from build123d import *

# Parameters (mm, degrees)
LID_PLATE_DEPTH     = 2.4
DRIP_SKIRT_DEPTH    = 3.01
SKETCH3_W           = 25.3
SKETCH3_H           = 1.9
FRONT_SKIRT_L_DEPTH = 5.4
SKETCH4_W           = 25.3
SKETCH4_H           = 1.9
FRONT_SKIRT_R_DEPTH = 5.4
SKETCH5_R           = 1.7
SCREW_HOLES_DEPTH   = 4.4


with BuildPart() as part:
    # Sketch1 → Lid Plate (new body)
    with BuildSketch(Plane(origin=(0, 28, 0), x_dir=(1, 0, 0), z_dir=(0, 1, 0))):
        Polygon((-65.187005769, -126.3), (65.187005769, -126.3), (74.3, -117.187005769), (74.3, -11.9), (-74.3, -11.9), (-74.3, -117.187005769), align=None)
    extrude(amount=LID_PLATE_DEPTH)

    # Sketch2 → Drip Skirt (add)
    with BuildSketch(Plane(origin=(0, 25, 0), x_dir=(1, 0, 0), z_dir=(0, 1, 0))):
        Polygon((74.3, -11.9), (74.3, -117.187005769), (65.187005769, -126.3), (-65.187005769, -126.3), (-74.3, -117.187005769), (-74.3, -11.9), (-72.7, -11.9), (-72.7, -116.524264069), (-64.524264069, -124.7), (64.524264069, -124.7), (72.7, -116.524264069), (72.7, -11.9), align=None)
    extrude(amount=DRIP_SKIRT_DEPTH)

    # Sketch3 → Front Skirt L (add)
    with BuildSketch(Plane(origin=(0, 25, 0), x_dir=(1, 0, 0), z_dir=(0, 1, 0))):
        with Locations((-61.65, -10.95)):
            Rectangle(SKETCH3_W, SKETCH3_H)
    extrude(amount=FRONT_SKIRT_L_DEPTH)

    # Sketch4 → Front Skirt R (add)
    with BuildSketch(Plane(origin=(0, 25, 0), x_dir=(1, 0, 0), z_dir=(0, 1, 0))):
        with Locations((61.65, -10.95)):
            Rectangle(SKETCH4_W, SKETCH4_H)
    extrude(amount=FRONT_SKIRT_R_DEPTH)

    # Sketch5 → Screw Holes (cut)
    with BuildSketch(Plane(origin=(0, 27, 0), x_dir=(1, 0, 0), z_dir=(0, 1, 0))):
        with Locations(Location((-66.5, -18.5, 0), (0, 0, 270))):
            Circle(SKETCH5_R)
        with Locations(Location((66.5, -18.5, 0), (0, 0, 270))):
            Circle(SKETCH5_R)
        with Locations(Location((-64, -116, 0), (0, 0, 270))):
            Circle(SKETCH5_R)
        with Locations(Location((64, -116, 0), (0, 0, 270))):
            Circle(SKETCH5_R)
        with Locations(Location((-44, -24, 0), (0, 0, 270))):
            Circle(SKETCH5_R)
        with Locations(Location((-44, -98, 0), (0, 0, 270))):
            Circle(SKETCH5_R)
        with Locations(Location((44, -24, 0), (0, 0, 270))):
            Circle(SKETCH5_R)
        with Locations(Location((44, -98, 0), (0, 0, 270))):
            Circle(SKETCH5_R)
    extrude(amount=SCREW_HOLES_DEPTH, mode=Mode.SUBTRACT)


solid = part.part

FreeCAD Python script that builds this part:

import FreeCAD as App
import Part
import Sketcher

V = App.Vector

doc = App.newDocument("Part")
body = doc.addObject("PartDesign::Body", "Body")

# Sketch on XZ plane
sketch1 = body.newObject("Sketcher::SketchObject", "Sketch")
sketch1.AttachmentSupport = (doc.getObject("XZ_Plane"), [""])
sketch1.MapMode = "FlatFace"
sketch1.AttachmentOffset = App.Placement(V(0, 0, -28), App.Rotation())
sketch1.addGeometry(Part.LineSegment(V(-65, 126, 0), V(65, 126, 0)), False)
sketch1.addGeometry(Part.LineSegment(V(65, 126, 0), V(74, 117, 0)), False)
sketch1.addGeometry(Part.LineSegment(V(74, 117, 0), V(74, 12, 0)), False)
sketch1.addGeometry(Part.LineSegment(V(74, 12, 0), V(-74, 12, 0)), False)
sketch1.addGeometry(Part.LineSegment(V(-74, 12, 0), V(-74, 117, 0)), False)
sketch1.addGeometry(Part.LineSegment(V(-74, 117, 0), V(-65, 126, 0)), False)
sketch1.addConstraint(Sketcher.Constraint("Coincident", 0, 2, 1, 1))
sketch1.addConstraint(Sketcher.Constraint("Coincident", 1, 2, 2, 1))
sketch1.addConstraint(Sketcher.Constraint("Coincident", 2, 2, 3, 1))
sketch1.addConstraint(Sketcher.Constraint("Coincident", 3, 2, 4, 1))
sketch1.addConstraint(Sketcher.Constraint("Coincident", 4, 2, 5, 1))
sketch1.addConstraint(Sketcher.Constraint("Coincident", 5, 2, 0, 1))
sketch1.addConstraint(Sketcher.Constraint("Horizontal", 0))
sketch1.addConstraint(Sketcher.Constraint("Vertical", 2))
sketch1.addConstraint(Sketcher.Constraint("Horizontal", 3))
sketch1.addConstraint(Sketcher.Constraint("Vertical", 4))
sketch1.addConstraint(Sketcher.Constraint("Symmetric", 1, 2, 4, 2, -2))
sketch1.addConstraint(Sketcher.Constraint("Perpendicular", 1, 5))
sketch1.addConstraint(Sketcher.Constraint("Equal", 1, 5))
sketch1.addConstraint(Sketcher.Constraint("DistanceX", 3, 2, 3, 1, 148.6))
sketch1.addConstraint(Sketcher.Constraint("DistanceY", -1, 1, 0, 2, 126.3))
sketch1.addConstraint(Sketcher.Constraint("DistanceY", -1, 1, 2, 2, 11.9))
sketch1.addConstraint(Sketcher.Constraint("DistanceX", 0, 1, 0, 2, 130.374012))
pad1 = body.newObject("PartDesign::Pad", "Pad")
pad1.Profile = sketch1
pad1.Length = 2.4
pad1.Reversed = True

# Sketch on XZ plane
sketch2 = body.newObject("Sketcher::SketchObject", "Sketch001")
sketch2.AttachmentSupport = (doc.getObject("XZ_Plane"), [""])
sketch2.MapMode = "FlatFace"
sketch2.AttachmentOffset = App.Placement(V(0, 0, -25), App.Rotation())
sketch2.addGeometry(Part.LineSegment(V(74.3, 117.2, 0), V(74.3, 11.9, 0)), False)
sketch2.addGeometry(Part.LineSegment(V(74.3, 11.9, 0), V(72.7, 11.9, 0)), False)
sketch2.addGeometry(Part.LineSegment(V(72.7, 11.9, 0), V(72.7, 116.5, 0)), False)
sketch2.addGeometry(Part.LineSegment(V(72.7, 116.5, 0), V(64.5, 124.7, 0)), False)
sketch2.addGeometry(Part.LineSegment(V(64.5, 124.7, 0), V(-64.5, 124.7, 0)), False)
sketch2.addGeometry(Part.LineSegment(V(-64.5, 124.7, 0), V(-72.7, 116.5, 0)), False)
sketch2.addGeometry(Part.LineSegment(V(-72.7, 116.5, 0), V(-72.7, 11.9, 0)), False)
sketch2.addGeometry(Part.LineSegment(V(-72.7, 11.9, 0), V(-74.3, 11.9, 0)), False)
sketch2.addGeometry(Part.LineSegment(V(-74.3, 11.9, 0), V(-74.3, 117.2, 0)), False)
sketch2.addGeometry(Part.LineSegment(V(-74.3, 117.2, 0), V(-65.2, 126.3, 0)), False)
sketch2.addGeometry(Part.LineSegment(V(-65.2, 126.3, 0), V(65.2, 126.3, 0)), False)
sketch2.addGeometry(Part.LineSegment(V(65.2, 126.3, 0), V(74.3, 117.2, 0)), False)
sketch2.addConstraint(Sketcher.Constraint("Coincident", 0, 2, 1, 1))
sketch2.addConstraint(Sketcher.Constraint("Coincident", 1, 2, 2, 1))
sketch2.addConstraint(Sketcher.Constraint("Coincident", 2, 2, 3, 1))
sketch2.addConstraint(Sketcher.Constraint("Coincident", 3, 2, 4, 1))
sketch2.addConstraint(Sketcher.Constraint("Coincident", 4, 2, 5, 1))
sketch2.addConstraint(Sketcher.Constraint("Coincident", 5, 2, 6, 1))
sketch2.addConstraint(Sketcher.Constraint("Coincident", 6, 2, 7, 1))
sketch2.addConstraint(Sketcher.Constraint("Coincident", 7, 2, 8, 1))
sketch2.addConstraint(Sketcher.Constraint("Coincident", 8, 2, 9, 1))
sketch2.addConstraint(Sketcher.Constraint("Coincident", 9, 2, 10, 1))
sketch2.addConstraint(Sketcher.Constraint("Coincident", 10, 2, 11, 1))
sketch2.addConstraint(Sketcher.Constraint("Coincident", 11, 2, 0, 1))
sketch2.addConstraint(Sketcher.Constraint("Vertical", 0))
sketch2.addConstraint(Sketcher.Constraint("Horizontal", 1))
sketch2.addConstraint(Sketcher.Constraint("Vertical", 2))
sketch2.addConstraint(Sketcher.Constraint("Horizontal", 4))
sketch2.addConstraint(Sketcher.Constraint("Vertical", 6))
sketch2.addConstraint(Sketcher.Constraint("Horizontal", 7))
sketch2.addConstraint(Sketcher.Constraint("Vertical", 8))
sketch2.addConstraint(Sketcher.Constraint("Horizontal", 10))
sketch2.addConstraint(Sketcher.Constraint("Symmetric", 2, 2, 5, 2, -2))
sketch2.addConstraint(Sketcher.Constraint("Symmetric", 0, 2, 7, 2, -2))
sketch2.addConstraint(Sketcher.Constraint("Perpendicular", 3, 5))
sketch2.addConstraint(Sketcher.Constraint("Parallel", 5, 9))
sketch2.addConstraint(Sketcher.Constraint("Perpendicular", 9, 11))
sketch2.addConstraint(Sketcher.Constraint("Horizontal", 8, 2, 11, 2))
sketch2.addConstraint(Sketcher.Constraint("Equal", 3, 5))
sketch2.addConstraint(Sketcher.Constraint("DistanceX", 1, 2, 1, 1, 1.6))
sketch2.addConstraint(Sketcher.Constraint("DistanceX", 5, 2, 0, 2, 147.0))
sketch2.addConstraint(Sketcher.Constraint("DistanceY", -1, 1, 0, 2, 11.9))
sketch2.addConstraint(Sketcher.Constraint("DistanceY", -1, 1, 3, 2, 124.7))
sketch2.addConstraint(Sketcher.Constraint("DistanceY", -1, 1, 9, 2, 126.3))
sketch2.addConstraint(Sketcher.Constraint("DistanceX", 4, 2, 4, 1, 129.048528))
sketch2.addConstraint(Sketcher.Constraint("DistanceX", 10, 1, 10, 2, 130.374012))
pad2 = body.newObject("PartDesign::Pad", "Pad001")
pad2.Profile = sketch2
pad2.Length = 3.01
pad2.Reversed = True

# Sketch on XZ plane
sketch3 = body.newObject("Sketcher::SketchObject", "Sketch002")
sketch3.AttachmentSupport = (doc.getObject("XZ_Plane"), [""])
sketch3.MapMode = "FlatFace"
sketch3.AttachmentOffset = App.Placement(V(0, 0, -25), App.Rotation())
sketch3.addGeometry(Part.LineSegment(V(-74.3, 10, 0), V(-74.3, 11.9, 0)), False)
sketch3.addGeometry(Part.LineSegment(V(-74.3, 11.9, 0), V(-49, 11.9, 0)), False)
sketch3.addGeometry(Part.LineSegment(V(-49, 11.9, 0), V(-49, 10, 0)), False)
sketch3.addGeometry(Part.LineSegment(V(-49, 10, 0), V(-74.3, 10, 0)), False)
sketch3.addConstraint(Sketcher.Constraint("Coincident", 0, 2, 1, 1))
sketch3.addConstraint(Sketcher.Constraint("Coincident", 1, 2, 2, 1))
sketch3.addConstraint(Sketcher.Constraint("Coincident", 2, 2, 3, 1))
sketch3.addConstraint(Sketcher.Constraint("Coincident", 3, 2, 0, 1))
sketch3.addConstraint(Sketcher.Constraint("Vertical", 0))
sketch3.addConstraint(Sketcher.Constraint("Horizontal", 1))
sketch3.addConstraint(Sketcher.Constraint("Vertical", 2))
sketch3.addConstraint(Sketcher.Constraint("Horizontal", 3))
sketch3.addConstraint(Sketcher.Constraint("DistanceX", 1, 1, 1, 2, 25.3))
sketch3.addConstraint(Sketcher.Constraint("DistanceY", 0, 1, 0, 2, 1.9))
sketch3.addConstraint(Sketcher.Constraint("DistanceX", 1, 2, -1, 1, 49.0))
sketch3.addConstraint(Sketcher.Constraint("DistanceY", -1, 1, 2, 2, 10.0))
pad3 = body.newObject("PartDesign::Pad", "Pad002")
pad3.Profile = sketch3
pad3.Length = 5.4
pad3.Reversed = True

# Sketch on XZ plane
sketch4 = body.newObject("Sketcher::SketchObject", "Sketch003")
sketch4.AttachmentSupport = (doc.getObject("XZ_Plane"), [""])
sketch4.MapMode = "FlatFace"
sketch4.AttachmentOffset = App.Placement(V(0, 0, -25), App.Rotation())
sketch4.addGeometry(Part.LineSegment(V(49, 10, 0), V(49, 11.9, 0)), False)
sketch4.addGeometry(Part.LineSegment(V(49, 11.9, 0), V(74.3, 11.9, 0)), False)
sketch4.addGeometry(Part.LineSegment(V(74.3, 11.9, 0), V(74.3, 10, 0)), False)
sketch4.addGeometry(Part.LineSegment(V(74.3, 10, 0), V(49, 10, 0)), False)
sketch4.addConstraint(Sketcher.Constraint("Coincident", 0, 2, 1, 1))
sketch4.addConstraint(Sketcher.Constraint("Coincident", 1, 2, 2, 1))
sketch4.addConstraint(Sketcher.Constraint("Coincident", 2, 2, 3, 1))
sketch4.addConstraint(Sketcher.Constraint("Coincident", 3, 2, 0, 1))
sketch4.addConstraint(Sketcher.Constraint("Vertical", 0))
sketch4.addConstraint(Sketcher.Constraint("Horizontal", 1))
sketch4.addConstraint(Sketcher.Constraint("Vertical", 2))
sketch4.addConstraint(Sketcher.Constraint("Horizontal", 3))
sketch4.addConstraint(Sketcher.Constraint("DistanceX", 1, 1, 1, 2, 25.3))
sketch4.addConstraint(Sketcher.Constraint("DistanceY", 0, 1, 0, 2, 1.9))
sketch4.addConstraint(Sketcher.Constraint("DistanceX", -1, 1, 0, 2, 49.0))
sketch4.addConstraint(Sketcher.Constraint("DistanceY", -1, 1, 2, 2, 10.0))
pad4 = body.newObject("PartDesign::Pad", "Pad003")
pad4.Profile = sketch4
pad4.Length = 5.4
pad4.Reversed = True

# Sketch on XZ plane
sketch5 = body.newObject("Sketcher::SketchObject", "Sketch004")
sketch5.AttachmentSupport = (doc.getObject("XZ_Plane"), [""])
sketch5.MapMode = "FlatFace"
sketch5.AttachmentOffset = App.Placement(V(0, 0, -27), App.Rotation())
sketch5.addGeometry(Part.Circle(V(-66.5, 18.5, 0), V(0, 0, 1), 1.7), False)
sketch5.addGeometry(Part.Circle(V(66.5, 18.5, 0), V(0, 0, 1), 1.7), False)
sketch5.addGeometry(Part.Circle(V(-64, 116, 0), V(0, 0, 1), 1.7), False)
sketch5.addGeometry(Part.Circle(V(64, 116, 0), V(0, 0, 1), 1.7), False)
sketch5.addGeometry(Part.Circle(V(-44, 24, 0), V(0, 0, 1), 1.7), False)
sketch5.addGeometry(Part.Circle(V(-44, 98, 0), V(0, 0, 1), 1.7), False)
sketch5.addGeometry(Part.Circle(V(44, 24, 0), V(0, 0, 1), 1.7), False)
sketch5.addGeometry(Part.Circle(V(44, 98, 0), V(0, 0, 1), 1.7), False)
sketch5.addConstraint(Sketcher.Constraint("Equal", 0, 1))
sketch5.addConstraint(Sketcher.Constraint("Equal", 1, 2))
sketch5.addConstraint(Sketcher.Constraint("Equal", 2, 3))
sketch5.addConstraint(Sketcher.Constraint("Equal", 3, 4))
sketch5.addConstraint(Sketcher.Constraint("Equal", 4, 5))
sketch5.addConstraint(Sketcher.Constraint("Equal", 5, 6))
sketch5.addConstraint(Sketcher.Constraint("Equal", 6, 7))
sketch5.addConstraint(Sketcher.Constraint("Symmetric", 0, 3, 1, 3, -2))
sketch5.addConstraint(Sketcher.Constraint("Symmetric", 2, 3, 3, 3, -2))
sketch5.addConstraint(Sketcher.Constraint("Symmetric", 4, 3, 6, 3, -2))
sketch5.addConstraint(Sketcher.Constraint("Symmetric", 5, 3, 7, 3, -2))
sketch5.addConstraint(Sketcher.Constraint("Vertical", 4, 3, 5, 3))
sketch5.addConstraint(Sketcher.Constraint("Diameter", 0, 3.4))
sketch5.addConstraint(Sketcher.Constraint("DistanceX", 2, 3, -1, 1, 64.0))
sketch5.addConstraint(Sketcher.Constraint("DistanceY", -1, 1, 2, 3, 116.0))
sketch5.addConstraint(Sketcher.Constraint("DistanceX", 4, 3, -1, 1, 44.0))
sketch5.addConstraint(Sketcher.Constraint("DistanceY", -1, 1, 4, 3, 24.0))
sketch5.addConstraint(Sketcher.Constraint("DistanceY", -1, 1, 5, 3, 98.0))
sketch5.addConstraint(Sketcher.Constraint("DistanceX", 0, 3, 1, 3, 133.0))
sketch5.addConstraint(Sketcher.Constraint("DistanceY", -1, 1, 0, 3, 18.5))
pocket1 = body.newObject("PartDesign::Pocket", "Pocket")
pocket1.Profile = sketch5
pocket1.Length = 4.4

doc.recompute()
